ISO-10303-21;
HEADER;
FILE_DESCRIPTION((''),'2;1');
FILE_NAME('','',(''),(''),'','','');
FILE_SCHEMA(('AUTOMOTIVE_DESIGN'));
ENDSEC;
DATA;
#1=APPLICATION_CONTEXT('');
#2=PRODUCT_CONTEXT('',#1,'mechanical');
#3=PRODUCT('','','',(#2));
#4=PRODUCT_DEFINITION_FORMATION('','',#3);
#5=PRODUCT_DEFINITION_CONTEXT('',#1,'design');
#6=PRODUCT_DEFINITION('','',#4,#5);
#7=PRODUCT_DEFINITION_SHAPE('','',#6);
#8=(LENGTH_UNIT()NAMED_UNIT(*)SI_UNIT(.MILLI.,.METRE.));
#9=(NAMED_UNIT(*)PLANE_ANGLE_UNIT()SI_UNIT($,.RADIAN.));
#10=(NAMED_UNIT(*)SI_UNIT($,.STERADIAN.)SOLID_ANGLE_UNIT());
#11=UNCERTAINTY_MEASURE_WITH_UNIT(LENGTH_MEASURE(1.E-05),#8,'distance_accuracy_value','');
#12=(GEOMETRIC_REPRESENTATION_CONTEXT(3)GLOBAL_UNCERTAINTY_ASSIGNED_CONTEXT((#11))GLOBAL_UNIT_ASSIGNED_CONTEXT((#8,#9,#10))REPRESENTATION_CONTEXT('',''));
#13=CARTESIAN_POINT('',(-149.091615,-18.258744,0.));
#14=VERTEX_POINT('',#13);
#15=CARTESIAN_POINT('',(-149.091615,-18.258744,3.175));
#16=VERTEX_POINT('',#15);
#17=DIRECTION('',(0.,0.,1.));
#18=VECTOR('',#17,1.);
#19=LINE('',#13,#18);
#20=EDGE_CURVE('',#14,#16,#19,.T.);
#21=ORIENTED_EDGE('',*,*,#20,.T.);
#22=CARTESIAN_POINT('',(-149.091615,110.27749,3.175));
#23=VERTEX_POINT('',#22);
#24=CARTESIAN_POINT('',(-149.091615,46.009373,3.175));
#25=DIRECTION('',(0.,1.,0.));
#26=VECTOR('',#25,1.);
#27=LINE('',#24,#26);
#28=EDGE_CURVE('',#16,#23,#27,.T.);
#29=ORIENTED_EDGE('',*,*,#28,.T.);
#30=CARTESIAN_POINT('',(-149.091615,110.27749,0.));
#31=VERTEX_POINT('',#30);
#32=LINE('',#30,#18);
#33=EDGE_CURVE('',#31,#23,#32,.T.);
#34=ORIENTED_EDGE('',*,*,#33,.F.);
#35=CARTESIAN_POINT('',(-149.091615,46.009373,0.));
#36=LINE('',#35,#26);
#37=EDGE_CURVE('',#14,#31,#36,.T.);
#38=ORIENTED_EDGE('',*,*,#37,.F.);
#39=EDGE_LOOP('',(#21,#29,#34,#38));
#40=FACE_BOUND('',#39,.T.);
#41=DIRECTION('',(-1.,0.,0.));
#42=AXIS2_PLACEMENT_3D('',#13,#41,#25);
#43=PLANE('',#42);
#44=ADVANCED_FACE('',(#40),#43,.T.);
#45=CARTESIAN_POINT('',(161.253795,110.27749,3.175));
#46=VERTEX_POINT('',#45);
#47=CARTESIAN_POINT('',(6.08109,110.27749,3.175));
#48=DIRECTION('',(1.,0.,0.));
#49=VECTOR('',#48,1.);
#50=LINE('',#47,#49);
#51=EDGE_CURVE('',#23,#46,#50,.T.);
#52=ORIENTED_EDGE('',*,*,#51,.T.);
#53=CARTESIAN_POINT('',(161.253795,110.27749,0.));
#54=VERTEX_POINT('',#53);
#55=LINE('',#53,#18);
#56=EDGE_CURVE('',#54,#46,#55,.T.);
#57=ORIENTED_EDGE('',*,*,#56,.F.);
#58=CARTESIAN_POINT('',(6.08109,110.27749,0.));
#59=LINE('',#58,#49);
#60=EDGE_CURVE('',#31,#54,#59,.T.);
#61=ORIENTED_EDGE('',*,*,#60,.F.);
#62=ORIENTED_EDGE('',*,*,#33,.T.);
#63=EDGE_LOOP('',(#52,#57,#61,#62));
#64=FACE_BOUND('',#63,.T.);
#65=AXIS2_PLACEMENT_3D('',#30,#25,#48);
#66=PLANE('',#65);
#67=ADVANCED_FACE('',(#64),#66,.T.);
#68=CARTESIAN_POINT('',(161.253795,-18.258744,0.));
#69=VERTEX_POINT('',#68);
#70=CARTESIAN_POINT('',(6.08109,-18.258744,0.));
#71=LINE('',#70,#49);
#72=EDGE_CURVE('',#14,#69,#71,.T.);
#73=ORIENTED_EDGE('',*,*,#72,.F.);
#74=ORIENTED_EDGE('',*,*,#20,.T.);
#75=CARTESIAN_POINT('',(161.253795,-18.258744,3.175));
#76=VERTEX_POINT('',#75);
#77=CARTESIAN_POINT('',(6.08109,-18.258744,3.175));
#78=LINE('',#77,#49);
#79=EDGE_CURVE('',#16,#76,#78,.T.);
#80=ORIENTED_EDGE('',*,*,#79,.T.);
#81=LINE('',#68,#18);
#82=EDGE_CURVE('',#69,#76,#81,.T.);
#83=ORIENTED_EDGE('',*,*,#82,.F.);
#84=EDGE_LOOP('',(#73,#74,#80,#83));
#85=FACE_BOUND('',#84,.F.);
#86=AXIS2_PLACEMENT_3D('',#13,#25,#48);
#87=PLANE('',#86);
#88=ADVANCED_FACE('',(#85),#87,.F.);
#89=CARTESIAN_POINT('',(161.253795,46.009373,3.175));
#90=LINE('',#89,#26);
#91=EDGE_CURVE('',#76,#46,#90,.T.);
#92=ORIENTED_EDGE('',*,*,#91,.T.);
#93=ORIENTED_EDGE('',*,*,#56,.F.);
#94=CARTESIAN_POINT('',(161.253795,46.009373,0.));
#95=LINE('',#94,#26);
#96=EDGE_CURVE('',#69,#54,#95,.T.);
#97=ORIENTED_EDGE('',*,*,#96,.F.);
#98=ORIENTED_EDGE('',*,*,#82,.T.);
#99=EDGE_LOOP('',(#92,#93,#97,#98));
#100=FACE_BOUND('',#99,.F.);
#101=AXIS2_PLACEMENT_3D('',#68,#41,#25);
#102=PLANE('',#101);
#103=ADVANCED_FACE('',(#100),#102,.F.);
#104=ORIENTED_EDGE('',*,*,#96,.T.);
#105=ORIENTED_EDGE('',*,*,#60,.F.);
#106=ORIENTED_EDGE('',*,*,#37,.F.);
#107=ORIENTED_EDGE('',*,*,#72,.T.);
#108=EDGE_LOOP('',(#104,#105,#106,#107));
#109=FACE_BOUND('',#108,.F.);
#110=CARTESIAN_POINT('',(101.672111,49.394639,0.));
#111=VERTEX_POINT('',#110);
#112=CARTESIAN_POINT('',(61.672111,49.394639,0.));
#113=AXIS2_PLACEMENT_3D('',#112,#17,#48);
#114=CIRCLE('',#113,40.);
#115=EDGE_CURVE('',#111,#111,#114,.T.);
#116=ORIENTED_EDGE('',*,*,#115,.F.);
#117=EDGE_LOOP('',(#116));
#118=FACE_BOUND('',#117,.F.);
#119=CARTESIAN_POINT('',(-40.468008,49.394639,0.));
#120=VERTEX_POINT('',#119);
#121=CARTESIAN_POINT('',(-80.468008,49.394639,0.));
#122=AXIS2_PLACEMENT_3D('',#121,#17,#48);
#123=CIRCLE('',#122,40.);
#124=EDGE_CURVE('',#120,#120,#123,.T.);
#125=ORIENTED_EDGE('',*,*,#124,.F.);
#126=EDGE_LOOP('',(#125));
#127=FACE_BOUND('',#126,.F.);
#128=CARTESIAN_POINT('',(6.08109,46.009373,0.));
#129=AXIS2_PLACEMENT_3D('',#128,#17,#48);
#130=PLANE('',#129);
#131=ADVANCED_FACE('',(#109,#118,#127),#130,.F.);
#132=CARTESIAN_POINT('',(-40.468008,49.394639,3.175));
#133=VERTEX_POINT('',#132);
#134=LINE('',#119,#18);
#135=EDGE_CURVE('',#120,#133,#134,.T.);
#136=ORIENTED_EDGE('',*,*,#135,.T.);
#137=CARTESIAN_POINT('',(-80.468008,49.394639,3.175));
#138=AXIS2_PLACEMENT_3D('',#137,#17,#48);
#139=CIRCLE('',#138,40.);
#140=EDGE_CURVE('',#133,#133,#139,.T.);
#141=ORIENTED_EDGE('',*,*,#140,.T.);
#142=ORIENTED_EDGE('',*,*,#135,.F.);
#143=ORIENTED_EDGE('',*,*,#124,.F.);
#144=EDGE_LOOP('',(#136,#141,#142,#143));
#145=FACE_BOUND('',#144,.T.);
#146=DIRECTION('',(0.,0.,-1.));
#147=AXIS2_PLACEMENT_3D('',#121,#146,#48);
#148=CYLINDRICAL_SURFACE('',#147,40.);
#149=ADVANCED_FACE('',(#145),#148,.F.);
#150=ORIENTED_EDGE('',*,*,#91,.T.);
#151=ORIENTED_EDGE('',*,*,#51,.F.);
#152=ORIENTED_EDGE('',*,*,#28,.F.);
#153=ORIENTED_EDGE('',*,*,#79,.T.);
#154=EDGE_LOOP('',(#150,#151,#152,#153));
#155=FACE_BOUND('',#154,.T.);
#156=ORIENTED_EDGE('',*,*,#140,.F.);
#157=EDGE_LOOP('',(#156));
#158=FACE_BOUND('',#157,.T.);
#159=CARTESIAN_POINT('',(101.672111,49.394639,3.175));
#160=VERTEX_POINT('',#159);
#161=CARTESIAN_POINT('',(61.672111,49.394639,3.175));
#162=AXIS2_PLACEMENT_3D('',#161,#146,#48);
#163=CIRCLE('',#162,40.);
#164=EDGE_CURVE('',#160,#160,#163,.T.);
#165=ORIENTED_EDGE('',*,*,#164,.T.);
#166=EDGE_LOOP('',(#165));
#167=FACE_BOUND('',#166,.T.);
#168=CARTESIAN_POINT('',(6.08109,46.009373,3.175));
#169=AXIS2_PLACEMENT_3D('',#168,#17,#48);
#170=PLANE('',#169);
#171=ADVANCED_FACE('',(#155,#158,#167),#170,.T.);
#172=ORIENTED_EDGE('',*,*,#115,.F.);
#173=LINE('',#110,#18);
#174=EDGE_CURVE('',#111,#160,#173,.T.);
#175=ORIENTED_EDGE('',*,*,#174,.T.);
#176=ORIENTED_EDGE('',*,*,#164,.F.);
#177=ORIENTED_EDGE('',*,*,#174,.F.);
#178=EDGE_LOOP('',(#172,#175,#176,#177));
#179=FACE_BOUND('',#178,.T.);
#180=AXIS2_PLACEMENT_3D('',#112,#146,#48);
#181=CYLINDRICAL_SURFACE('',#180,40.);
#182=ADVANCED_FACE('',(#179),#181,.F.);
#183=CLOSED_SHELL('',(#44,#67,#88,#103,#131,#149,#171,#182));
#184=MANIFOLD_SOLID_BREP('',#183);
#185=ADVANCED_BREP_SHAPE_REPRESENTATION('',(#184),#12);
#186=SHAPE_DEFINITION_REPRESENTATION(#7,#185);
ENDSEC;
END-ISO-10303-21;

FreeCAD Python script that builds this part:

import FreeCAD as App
import Part
import Sketcher
Q = App.Units.Quantity

doc = App.newDocument("Part")
body = doc.addObject("PartDesign::Body", "Body")

sketch1 = doc.addObject("Sketcher::SketchObject", "Sketch")
body.addObject(sketch1)
sketch1.AttachmentSupport = (doc.XY_Plane, [""])
sketch1.MapMode = "FlatFace"
sketch1.addGeometry([
    Part.LineSegment(App.Vector(-149, 110, 0), App.Vector(-149, -18, 0)),
    Part.LineSegment(App.Vector(-149, -18, 0), App.Vector(161, -18, 0)),
    Part.LineSegment(App.Vector(161, -18, 0), App.Vector(161, 110, 0)),
    Part.LineSegment(App.Vector(161, 110, 0), App.Vector(-149, 110, 0)),
    Part.Circle(App.Vector(-80, 49, 0), App.Vector(0, 0, 1), 40),
], False)
sketch1.addConstraint([
    Sketcher.Constraint("Coincident", 0, 2, 1, 1),
    Sketcher.Constraint("Coincident", 1, 2, 2, 1),
    Sketcher.Constraint("Coincident", 2, 2, 3, 1),
    Sketcher.Constraint("Coincident", 3, 2, 0, 1),
    Sketcher.Constraint("Vertical", 0),
    Sketcher.Constraint("Horizontal", 1),
    Sketcher.Constraint("Vertical", 2),
    Sketcher.Constraint("Horizontal", 3),
    Sketcher.Constraint("Diameter", 4, 80.0),
    Sketcher.Constraint("DistanceX", 1, 1, 1, 2, 310.345411),
    Sketcher.Constraint("DistanceY", 0, 2, 0, 1, 128.536235),
    Sketcher.Constraint("DistanceY", -1, 1, 4, 3, 49.394639),
    Sketcher.Constraint("DistanceY", -1, 1, 2, 2, 110.27749),
    Sketcher.Constraint("DistanceX", 4, 3, -1, 1, 80.468008),
    Sketcher.Constraint("DistanceX", 0, 2, -1, 1, 149.091615),
])
pad1 = doc.addObject("PartDesign::Pad", "Pad")
body.addObject(pad1)
pad1.Profile = sketch1
pad1.Length = Q("0.125 in")

sketch2 = doc.addObject("Sketcher::SketchObject", "Sketch001")
body.addObject(sketch2)
sketch2.AttachmentSupport = (doc.XY_Plane, [""])
sketch2.MapMode = "FlatFace"
sketch2.addGeometry(Part.Circle(App.Vector(62, 49, 0), App.Vector(0, 0, 1), 40), False)
sketch2.addConstraint([
    Sketcher.Constraint("Diameter", 0, 80.0),
    Sketcher.Constraint("DistanceX", -1, 1, 0, 3, 61.672111),
    Sketcher.Constraint("DistanceY", -1, 1, 0, 3, 49.394639),
])
pocket1 = doc.addObject("PartDesign::Pocket", "Pocket")
body.addObject(pocket1)
pocket1.Profile = sketch2
pocket1.Length = Q("1 in")
pocket1.Reversed = True

doc.recompute()
